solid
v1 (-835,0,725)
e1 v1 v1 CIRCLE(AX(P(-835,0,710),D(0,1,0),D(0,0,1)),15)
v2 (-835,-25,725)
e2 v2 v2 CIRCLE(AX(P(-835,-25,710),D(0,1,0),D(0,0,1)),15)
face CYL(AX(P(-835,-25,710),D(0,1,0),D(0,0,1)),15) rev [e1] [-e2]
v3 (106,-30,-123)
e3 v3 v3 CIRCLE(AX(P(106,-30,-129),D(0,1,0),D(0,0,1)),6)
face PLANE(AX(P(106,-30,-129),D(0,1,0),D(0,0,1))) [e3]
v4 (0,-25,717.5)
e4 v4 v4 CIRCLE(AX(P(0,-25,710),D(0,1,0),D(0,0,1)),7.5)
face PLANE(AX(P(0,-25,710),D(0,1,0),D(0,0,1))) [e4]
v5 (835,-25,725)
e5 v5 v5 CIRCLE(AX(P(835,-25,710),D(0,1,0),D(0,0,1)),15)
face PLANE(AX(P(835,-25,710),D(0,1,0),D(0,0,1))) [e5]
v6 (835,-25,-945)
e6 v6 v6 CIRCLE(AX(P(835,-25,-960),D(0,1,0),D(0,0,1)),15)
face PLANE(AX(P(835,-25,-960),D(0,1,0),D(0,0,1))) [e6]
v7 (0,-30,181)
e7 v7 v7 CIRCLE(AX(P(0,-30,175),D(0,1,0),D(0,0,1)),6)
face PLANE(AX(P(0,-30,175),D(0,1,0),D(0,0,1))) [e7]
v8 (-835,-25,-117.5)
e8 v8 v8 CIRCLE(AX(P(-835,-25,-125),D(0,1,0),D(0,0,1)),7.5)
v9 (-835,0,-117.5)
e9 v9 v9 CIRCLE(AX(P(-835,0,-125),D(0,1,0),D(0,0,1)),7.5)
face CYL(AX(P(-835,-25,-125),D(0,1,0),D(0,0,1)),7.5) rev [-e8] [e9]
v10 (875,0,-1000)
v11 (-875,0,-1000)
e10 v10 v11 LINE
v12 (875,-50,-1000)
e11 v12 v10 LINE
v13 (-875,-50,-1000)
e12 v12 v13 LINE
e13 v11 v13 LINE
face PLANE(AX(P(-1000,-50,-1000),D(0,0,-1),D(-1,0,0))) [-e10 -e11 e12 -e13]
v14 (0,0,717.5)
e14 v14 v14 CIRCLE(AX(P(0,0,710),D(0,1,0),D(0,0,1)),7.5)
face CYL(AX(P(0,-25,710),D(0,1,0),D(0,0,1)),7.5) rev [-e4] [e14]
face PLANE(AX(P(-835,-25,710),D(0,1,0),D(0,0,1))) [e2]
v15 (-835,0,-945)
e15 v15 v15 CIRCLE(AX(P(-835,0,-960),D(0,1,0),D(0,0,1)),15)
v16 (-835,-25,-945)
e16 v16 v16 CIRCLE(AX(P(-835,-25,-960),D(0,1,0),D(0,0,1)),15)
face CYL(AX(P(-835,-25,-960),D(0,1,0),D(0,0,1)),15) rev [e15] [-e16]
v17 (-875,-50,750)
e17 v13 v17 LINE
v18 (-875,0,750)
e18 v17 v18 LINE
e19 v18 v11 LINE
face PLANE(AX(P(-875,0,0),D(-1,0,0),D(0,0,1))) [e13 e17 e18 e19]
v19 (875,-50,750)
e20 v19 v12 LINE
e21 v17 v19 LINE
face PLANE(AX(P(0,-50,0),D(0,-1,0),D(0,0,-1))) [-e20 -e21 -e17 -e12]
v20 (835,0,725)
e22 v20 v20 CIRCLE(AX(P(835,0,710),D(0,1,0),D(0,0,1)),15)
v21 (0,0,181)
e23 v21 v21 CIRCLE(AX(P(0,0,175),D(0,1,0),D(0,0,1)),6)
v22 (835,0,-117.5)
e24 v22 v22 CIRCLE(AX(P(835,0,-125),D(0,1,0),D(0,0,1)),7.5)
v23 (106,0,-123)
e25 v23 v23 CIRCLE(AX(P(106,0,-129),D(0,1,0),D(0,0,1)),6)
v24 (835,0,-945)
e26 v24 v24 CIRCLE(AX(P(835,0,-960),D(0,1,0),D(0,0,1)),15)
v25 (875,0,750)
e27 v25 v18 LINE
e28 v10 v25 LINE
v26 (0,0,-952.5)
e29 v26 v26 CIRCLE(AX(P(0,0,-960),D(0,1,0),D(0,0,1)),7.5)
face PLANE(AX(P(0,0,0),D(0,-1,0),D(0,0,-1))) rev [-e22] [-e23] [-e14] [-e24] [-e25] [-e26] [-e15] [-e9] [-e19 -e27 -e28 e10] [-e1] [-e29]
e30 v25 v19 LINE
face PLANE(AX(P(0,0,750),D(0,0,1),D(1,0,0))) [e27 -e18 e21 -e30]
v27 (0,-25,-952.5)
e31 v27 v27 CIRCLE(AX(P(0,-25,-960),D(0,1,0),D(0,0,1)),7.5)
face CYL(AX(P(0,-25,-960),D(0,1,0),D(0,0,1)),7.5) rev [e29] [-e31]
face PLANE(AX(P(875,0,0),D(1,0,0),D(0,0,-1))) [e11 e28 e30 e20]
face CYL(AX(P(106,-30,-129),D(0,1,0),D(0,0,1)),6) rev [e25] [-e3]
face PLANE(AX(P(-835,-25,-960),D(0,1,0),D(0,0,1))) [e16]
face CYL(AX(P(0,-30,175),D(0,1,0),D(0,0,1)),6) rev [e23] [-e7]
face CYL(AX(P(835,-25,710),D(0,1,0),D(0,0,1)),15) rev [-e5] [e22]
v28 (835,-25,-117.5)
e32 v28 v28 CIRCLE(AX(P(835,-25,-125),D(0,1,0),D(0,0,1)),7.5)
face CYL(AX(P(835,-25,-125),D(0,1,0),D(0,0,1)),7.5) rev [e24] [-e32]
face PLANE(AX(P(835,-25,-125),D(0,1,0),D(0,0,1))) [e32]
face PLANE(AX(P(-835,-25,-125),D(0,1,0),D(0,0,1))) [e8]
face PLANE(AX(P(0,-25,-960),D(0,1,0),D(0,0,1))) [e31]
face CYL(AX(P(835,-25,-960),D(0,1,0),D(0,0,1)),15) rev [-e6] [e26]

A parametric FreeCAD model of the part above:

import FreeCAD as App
import Part
import Sketcher

doc = App.newDocument("Part")
body = doc.addObject("PartDesign::Body", "Body")

sketch1 = doc.addObject("Sketcher::SketchObject", "Sketch")
body.addObject(sketch1)
sketch1.AttachmentSupport = (doc.XZ_Plane, [""])
sketch1.MapMode = "FlatFace"
sketch1.addGeometry(Part.LineSegment(App.Vector(-1000, -1000, 0), App.Vector(-1000, 1000, 0)), False)
sketch1.addGeometry(Part.LineSegment(App.Vector(-1000, 1000, 0), App.Vector(1000, 1000, 0)), False)
sketch1.addGeometry(Part.LineSegment(App.Vector(1000, 1000, 0), App.Vector(1000, -1000, 0)), False)
sketch1.addGeometry(Part.LineSegment(App.Vector(1000, -1000, 0), App.Vector(-1000, -1000, 0)), False)
sketch1.addConstraint(Sketcher.Constraint("Coincident", 0, 2, 1, 1))
sketch1.addConstraint(Sketcher.Constraint("Coincident", 1, 2, 2, 1))
sketch1.addConstraint(Sketcher.Constraint("Coincident", 2, 2, 3, 1))
sketch1.addConstraint(Sketcher.Constraint("Coincident", 3, 2, 0, 1))
sketch1.addConstraint(Sketcher.Constraint("Vertical", 0))
sketch1.addConstraint(Sketcher.Constraint("Horizontal", 1))
sketch1.addConstraint(Sketcher.Constraint("Vertical", 2))
sketch1.addConstraint(Sketcher.Constraint("Horizontal", 3))
sketch1.addConstraint(Sketcher.Constraint("Symmetric", 0, 2, 2, 2, -1, 1))
sketch1.addConstraint(Sketcher.Constraint("Equal", 3, 0))
sketch1.addConstraint(Sketcher.Constraint("DistanceX", 1, 1, 1, 2, 2000.0))
pad1 = doc.addObject("PartDesign::Pad", "Pad")
body.addObject(pad1)
pad1.Profile = sketch1
pad1.Length = 50

sketch2 = doc.addObject("Sketcher::SketchObject", "Sketch001")
body.addObject(sketch2)
sketch2.AttachmentSupport = (doc.XZ_Plane, [""])
sketch2.MapMode = "FlatFace"
sketch2.addGeometry(Part.Circle(App.Vector(0, 175, 0), App.Vector(0, 0, 1), 6), False)
sketch2.addGeometry(Part.Circle(App.Vector(106, -129, 0), App.Vector(0, 0, 1), 6), False)
sketch2.addConstraint(Sketcher.Constraint("Equal", 0, 1))
sketch2.addConstraint(Sketcher.Constraint("PointOnObject", 0, 3, -2))
sketch2.addConstraint(Sketcher.Constraint("Diameter", 0, 12.0))
sketch2.addConstraint(Sketcher.Constraint("DistanceY", -1, 1, 0, 3, 175.0))
sketch2.addConstraint(Sketcher.Constraint("DistanceX", -1, 1, 1, 3, 106.0))
sketch2.addConstraint(Sketcher.Constraint("DistanceY", 1, 3, -1, 1, 129.0))
pocket1 = doc.addObject("PartDesign::Pocket", "Pocket")
body.addObject(pocket1)
pocket1.Profile = sketch2
pocket1.Length = 30
pocket1.Reversed = True

sketch3 = doc.addObject("Sketcher::SketchObject", "Sketch002")
body.addObject(sketch3)
sketch3.AttachmentSupport = (doc.XY_Plane, [""])
sketch3.MapMode = "FlatFace"
sketch3.AttachmentOffset = App.Placement(App.Vector(0, 0, 1000), App.Rotation())
sketch3.addGeometry(Part.LineSegment(App.Vector(-1000, 0, 0), App.Vector(-1000, -50, 0)), False)
sketch3.addGeometry(Part.LineSegment(App.Vector(-1000, -50, 0), App.Vector(1000, -50, 0)), False)
sketch3.addGeometry(Part.LineSegment(App.Vector(1000, -50, 0), App.Vector(1000, 0, 0)), False)
sketch3.addGeometry(Part.LineSegment(App.Vector(1000, 0, 0), App.Vector(-1000, 0, 0)), False)
sketch3.addConstraint(Sketcher.Constraint("Coincident", 0, 2, 1, 1))
sketch3.addConstraint(Sketcher.Constraint("Coincident", 1, 2, 2, 1))
sketch3.addConstraint(Sketcher.Constraint("Coincident", 2, 2, 3, 1))
sketch3.addConstraint(Sketcher.Constraint("Coincident", 3, 2, 0, 1))
sketch3.addConstraint(Sketcher.Constraint("Vertical", 0))
sketch3.addConstraint(Sketcher.Constraint("Horizontal", 1))
sketch3.addConstraint(Sketcher.Constraint("Vertical", 2))
sketch3.addConstraint(Sketcher.Constraint("Horizontal", 3))
sketch3.addConstraint(Sketcher.Constraint("Symmetric", 2, 2, 3, 2, -1, 1))
sketch3.addConstraint(Sketcher.Constraint("DistanceX", 1, 1, 1, 2, 2000.0))
sketch3.addConstraint(Sketcher.Constraint("DistanceY", 0, 2, 0, 1, 50.0))
pocket2 = doc.addObject("PartDesign::Pocket", "Pocket001")
body.addObject(pocket2)
pocket2.Profile = sketch3
pocket2.Length = 250

sketch4 = doc.addObject("Sketcher::SketchObject", "Sketch003")
body.addObject(sketch4)
sketch4.AttachmentSupport = (doc.YZ_Plane, [""])
sketch4.MapMode = "FlatFace"
sketch4.AttachmentOffset = App.Placement(App.Vector(0, 0, -1000), App.Rotation())
sketch4.addGeometry(Part.LineSegment(App.Vector(0, -1000, 0), App.Vector(-50, -1000, 0)), False)
sketch4.addGeometry(Part.LineSegment(App.Vector(-50, -1000, 0), App.Vector(-50, 750, 0)), False)
sketch4.addGeometry(Part.LineSegment(App.Vector(-50, 750, 0), App.Vector(0, 750, 0)), False)
sketch4.addGeometry(Part.LineSegment(App.Vector(0, 750, 0), App.Vector(0, -1000, 0)), False)
sketch4.addConstraint(Sketcher.Constraint("Coincident", 0, 2, 1, 1))
sketch4.addConstraint(Sketcher.Constraint("Coincident", 1, 2, 2, 1))
sketch4.addConstraint(Sketcher.Constraint("Coincident", 2, 2, 3, 1))
sketch4.addConstraint(Sketcher.Constraint("Coincident", 3, 2, 0, 1))
sketch4.addConstraint(Sketcher.Constraint("Horizontal", 0))
sketch4.addConstraint(Sketcher.Constraint("Vertical", 1))
sketch4.addConstraint(Sketcher.Constraint("Horizontal", 2))
sketch4.addConstraint(Sketcher.Constraint("Vertical", 3))
sketch4.addConstraint(Sketcher.Constraint("PointOnObject", 2, 2, -2))
sketch4.addConstraint(Sketcher.Constraint("DistanceX", 0, 2, 0, 1, 50.0))
sketch4.addConstraint(Sketcher.Constraint("DistanceY", 1, 1, 1, 2, 1750.0))
sketch4.addConstraint(Sketcher.Constraint("DistanceY", 0, 2, -1, 1, 1000.0))
pocket3 = doc.addObject("PartDesign::Pocket", "Pocket002")
body.addObject(pocket3)
pocket3.Profile = sketch4
pocket3.Length = 125
pocket3.Reversed = True

sketch5 = doc.addObject("Sketcher::SketchObject", "Sketch004")
body.addObject(sketch5)
sketch5.AttachmentSupport = (doc.YZ_Plane, [""])
sketch5.MapMode = "FlatFace"
sketch5.AttachmentOffset = App.Placement(App.Vector(0, 0, 1000), App.Rotation())
sketch5.addGeometry(Part.LineSegment(App.Vector(0, 750, 0), App.Vector(-50, 750, 0)), False)
sketch5.addGeometry(Part.LineSegment(App.Vector(-50, 750, 0), App.Vector(-50, -1000, 0)), False)
sketch5.addGeometry(Part.LineSegment(App.Vector(-50, -1000, 0), App.Vector(0, -1000, 0)), False)
sketch5.addGeometry(Part.LineSegment(App.Vector(0, -1000, 0), App.Vector(0, 750, 0)), False)
sketch5.addConstraint(Sketcher.Constraint("Coincident", 0, 2, 1, 1))
sketch5.addConstraint(Sketcher.Constraint("Coincident", 1, 2, 2, 1))
sketch5.addConstraint(Sketcher.Constraint("Coincident", 2, 2, 3, 1))
sketch5.addConstraint(Sketcher.Constraint("Coincident", 3, 2, 0, 1))
sketch5.addConstraint(Sketcher.Constraint("Horizontal", 0))
sketch5.addConstraint(Sketcher.Constraint("Vertical", 1))
sketch5.addConstraint(Sketcher.Constraint("Horizontal", 2))
sketch5.addConstraint(Sketcher.Constraint("Vertical", 3))
sketch5.addConstraint(Sketcher.Constraint("PointOnObject", 2, 2, -2))
sketch5.addConstraint(Sketcher.Constraint("DistanceX", 0, 2, 0, 1, 50.0))
sketch5.addConstraint(Sketcher.Constraint("DistanceY", 1, 2, 1, 1, 1750.0))
sketch5.addConstraint(Sketcher.Constraint("DistanceY", -1, 1, 0, 2, 750.0))
pocket4 = doc.addObject("PartDesign::Pocket", "Pocket003")
body.addObject(pocket4)
pocket4.Profile = sketch5
pocket4.Length = 125

sketch6 = doc.addObject("Sketcher::SketchObject", "Sketch005")
body.addObject(sketch6)
sketch6.AttachmentSupport = (doc.XZ_Plane, [""])
sketch6.MapMode = "FlatFace"
sketch6.addGeometry(Part.Circle(App.Vector(-835, 710, 0), App.Vector(0, 0, 1), 15), False)
sketch6.addGeometry(Part.Circle(App.Vector(835, -960, 0), App.Vector(0, 0, 1), 15), False)
sketch6.addGeometry(Part.Circle(App.Vector(835, 710, 0), App.Vector(0, 0, 1), 15), False)
sketch6.addGeometry(Part.Circle(App.Vector(-835, -960, 0), App.Vector(0, 0, 1), 15), False)
sketch6.addGeometry(Part.Circle(App.Vector(0, 710, 0), App.Vector(0, 0, 1), 8), False)
sketch6.addGeometry(Part.Circle(App.Vector(0, -960, 0), App.Vector(0, 0, 1), 8), False)
sketch6.addGeometry(Part.Circle(App.Vector(-835, -125, 0), App.Vector(0, 0, 1), 8), False)
sketch6.addGeometry(Part.Circle(App.Vector(835, -125, 0), App.Vector(0, 0, 1), 8), False)
sketch6.addConstraint(Sketcher.Constraint("Equal", 0, 1))
sketch6.addConstraint(Sketcher.Constraint("Equal", 1, 2))
sketch6.addConstraint(Sketcher.Constraint("Equal", 2, 3))
sketch6.addConstraint(Sketcher.Constraint("Equal", 4, 5))
sketch6.addConstraint(Sketcher.Constraint("Equal", 5, 6))
sketch6.addConstraint(Sketcher.Constraint("Equal", 6, 7))
sketch6.addConstraint(Sketcher.Constraint("Symmetric", 0, 3, 2, 3, -2))
sketch6.addConstraint(Sketcher.Constraint("Symmetric", 1, 3, 3, 3, -2))
sketch6.addConstraint(Sketcher.Constraint("Symmetric", 6, 3, 7, 3, -2))
sketch6.addConstraint(Sketcher.Constraint("PointOnObject", 4, 3, -2))
sketch6.addConstraint(Sketcher.Constraint("PointOnObject", 5, 3, -2))
sketch6.addConstraint(Sketcher.Constraint("Horizontal", 2, 3, 4, 3))
sketch6.addConstraint(Sketcher.Constraint("Horizontal", 3, 3, 5, 3))
sketch6.addConstraint(Sketcher.Constraint("Vertical", 1, 3, 2, 3))
sketch6.addConstraint(Sketcher.Constraint("Vertical", 3, 3, 6, 3))
sketch6.addConstraint(Sketcher.Constraint("Diameter", 0, 30.0))
sketch6.addConstraint(Sketcher.Constraint("Diameter", 4, 15.0))
sketch6.addConstraint(Sketcher.Constraint("DistanceX", 0, 3, -1, 1, 835.0))
sketch6.addConstraint(Sketcher.Constraint("DistanceY", -1, 1, 0, 3, 710.0))
sketch6.addConstraint(Sketcher.Constraint("DistanceY", 1, 3, -1, 1, 960.0))
sketch6.addConstraint(Sketcher.Constraint("DistanceY", 6, 3, -1, 1, 125.0))
pocket5 = doc.addObject("PartDesign::Pocket", "Pocket004")
body.addObject(pocket5)
pocket5.Profile = sketch6
pocket5.Length = 25
pocket5.Reversed = True

doc.recompute()
